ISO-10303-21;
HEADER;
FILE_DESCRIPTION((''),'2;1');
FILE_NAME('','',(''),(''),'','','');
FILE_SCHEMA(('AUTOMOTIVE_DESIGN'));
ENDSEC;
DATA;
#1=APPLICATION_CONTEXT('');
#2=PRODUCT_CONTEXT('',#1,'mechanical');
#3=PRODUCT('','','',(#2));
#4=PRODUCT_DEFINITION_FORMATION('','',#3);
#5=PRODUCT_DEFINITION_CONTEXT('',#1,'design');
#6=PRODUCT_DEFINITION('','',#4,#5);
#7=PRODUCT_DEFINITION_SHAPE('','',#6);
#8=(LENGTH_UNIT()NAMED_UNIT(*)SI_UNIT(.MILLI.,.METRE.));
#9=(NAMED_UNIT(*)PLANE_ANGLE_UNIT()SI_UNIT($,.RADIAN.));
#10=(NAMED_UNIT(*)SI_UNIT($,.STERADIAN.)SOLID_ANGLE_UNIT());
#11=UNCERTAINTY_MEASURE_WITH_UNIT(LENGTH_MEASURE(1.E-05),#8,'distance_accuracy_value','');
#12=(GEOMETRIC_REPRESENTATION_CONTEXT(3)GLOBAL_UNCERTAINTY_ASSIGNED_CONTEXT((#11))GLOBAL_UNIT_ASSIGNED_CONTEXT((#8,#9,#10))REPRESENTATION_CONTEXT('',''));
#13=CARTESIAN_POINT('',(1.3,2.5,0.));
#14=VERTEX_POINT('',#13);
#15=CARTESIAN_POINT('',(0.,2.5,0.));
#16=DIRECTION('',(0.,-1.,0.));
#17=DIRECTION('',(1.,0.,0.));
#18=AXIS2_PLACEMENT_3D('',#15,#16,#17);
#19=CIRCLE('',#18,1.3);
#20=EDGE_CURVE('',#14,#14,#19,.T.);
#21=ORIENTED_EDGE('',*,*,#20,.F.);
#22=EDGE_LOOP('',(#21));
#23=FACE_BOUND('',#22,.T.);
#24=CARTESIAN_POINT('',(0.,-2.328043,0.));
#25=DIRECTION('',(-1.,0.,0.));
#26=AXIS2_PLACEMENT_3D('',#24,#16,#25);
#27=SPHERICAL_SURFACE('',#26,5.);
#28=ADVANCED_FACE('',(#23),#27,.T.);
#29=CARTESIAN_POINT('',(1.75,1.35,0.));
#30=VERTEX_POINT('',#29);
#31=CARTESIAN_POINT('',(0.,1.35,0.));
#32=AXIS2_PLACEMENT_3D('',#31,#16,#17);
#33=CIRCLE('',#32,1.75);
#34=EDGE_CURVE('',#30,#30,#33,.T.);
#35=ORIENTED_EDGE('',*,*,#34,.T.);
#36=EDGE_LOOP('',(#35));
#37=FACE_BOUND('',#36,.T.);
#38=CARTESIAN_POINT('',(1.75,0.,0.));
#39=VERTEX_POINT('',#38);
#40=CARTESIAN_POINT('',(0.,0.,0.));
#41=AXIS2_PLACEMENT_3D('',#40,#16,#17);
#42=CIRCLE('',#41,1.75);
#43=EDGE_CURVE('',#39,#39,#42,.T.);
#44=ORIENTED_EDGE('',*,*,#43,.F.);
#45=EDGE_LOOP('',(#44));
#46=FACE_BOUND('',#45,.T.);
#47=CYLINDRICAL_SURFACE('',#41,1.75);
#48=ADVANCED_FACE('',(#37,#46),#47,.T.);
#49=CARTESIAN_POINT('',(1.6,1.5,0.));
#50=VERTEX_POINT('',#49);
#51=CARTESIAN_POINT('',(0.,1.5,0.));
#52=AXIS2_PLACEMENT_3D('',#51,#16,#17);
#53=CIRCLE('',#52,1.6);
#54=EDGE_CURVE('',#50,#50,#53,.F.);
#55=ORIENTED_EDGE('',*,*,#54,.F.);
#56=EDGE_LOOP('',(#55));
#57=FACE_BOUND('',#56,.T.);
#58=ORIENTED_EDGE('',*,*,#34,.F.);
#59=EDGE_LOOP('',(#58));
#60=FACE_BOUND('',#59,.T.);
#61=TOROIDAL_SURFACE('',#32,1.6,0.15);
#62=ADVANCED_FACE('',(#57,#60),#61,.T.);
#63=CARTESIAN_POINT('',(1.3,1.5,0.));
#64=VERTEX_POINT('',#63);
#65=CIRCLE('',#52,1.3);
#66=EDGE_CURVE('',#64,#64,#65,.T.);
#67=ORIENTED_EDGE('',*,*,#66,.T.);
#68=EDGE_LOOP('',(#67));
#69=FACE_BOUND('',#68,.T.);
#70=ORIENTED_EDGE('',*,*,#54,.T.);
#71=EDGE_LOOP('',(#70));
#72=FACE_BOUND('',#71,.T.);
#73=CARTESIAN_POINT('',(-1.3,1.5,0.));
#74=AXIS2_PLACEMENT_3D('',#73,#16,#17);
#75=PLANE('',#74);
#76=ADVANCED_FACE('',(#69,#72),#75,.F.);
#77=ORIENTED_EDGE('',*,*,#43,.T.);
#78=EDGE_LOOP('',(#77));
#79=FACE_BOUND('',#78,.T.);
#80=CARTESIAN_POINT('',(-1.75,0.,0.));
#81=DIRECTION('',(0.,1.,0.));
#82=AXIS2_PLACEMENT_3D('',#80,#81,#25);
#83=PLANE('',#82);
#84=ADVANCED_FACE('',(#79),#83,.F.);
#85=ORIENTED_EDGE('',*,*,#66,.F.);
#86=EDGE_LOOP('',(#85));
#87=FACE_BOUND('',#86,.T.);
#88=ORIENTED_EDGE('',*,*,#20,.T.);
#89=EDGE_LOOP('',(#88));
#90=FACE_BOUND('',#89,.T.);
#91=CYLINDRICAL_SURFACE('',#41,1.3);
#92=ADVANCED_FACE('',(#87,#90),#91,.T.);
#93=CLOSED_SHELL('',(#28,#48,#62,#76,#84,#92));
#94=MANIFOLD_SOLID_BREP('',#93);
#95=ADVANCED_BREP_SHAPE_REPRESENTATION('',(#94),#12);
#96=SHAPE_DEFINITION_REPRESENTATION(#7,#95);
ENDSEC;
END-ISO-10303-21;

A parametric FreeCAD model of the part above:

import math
import FreeCAD as App
import Part
import Sketcher

V = App.Vector
Q = App.Units.Quantity


def edges_at(feature, points):
    """Names of the edges that pass closest to the given points."""
    edges = feature.Shape.Edges
    near = lambda p: min(range(len(edges)), key=lambda i: edges[i].distToShape(Part.Vertex(*p))[0])
    return sorted({f"Edge{near(p) + 1}" for p in points})

doc = App.newDocument("Part")
body = doc.addObject("PartDesign::Body", "Body")

# Sketch on XY plane
sketch1 = body.newObject("Sketcher::SketchObject", "Sketch")
sketch1.AttachmentSupport = (doc.getObject("XY_Plane"), [""])
sketch1.MapMode = "FlatFace"
sketch1.addGeometry([
    Part.LineSegment(V(-1.3, 2.5, 0), V(-1.3, 1.5, 0)),  # 0
    Part.LineSegment(V(-1.3, 1.5, 0), V(-1.75, 1.5, 0)),  # 1
    Part.LineSegment(V(-1.75, 1.5, 0), V(-1.75, 0, 0)),  # 2
    Part.LineSegment(V(-1.75, 0, 0), V(0, 0, 0)),  # 3
    Part.LineSegment(V(0, 0, 0), V(0, 2.67, 0)),  # 4
    Part.ArcOfCircle(Part.Circle(V(0, -2.33, 0), V(0, 0, 1), 5), math.radians(90), math.radians(105.07)),  # 5
], False)
sketch1.addConstraint([
    Sketcher.Constraint("Coincident", 0, 2, 1, 1),
    Sketcher.Constraint("Coincident", 1, 2, 2, 1),
    Sketcher.Constraint("Coincident", 2, 2, 3, 1),
    Sketcher.Constraint("Coincident", 3, 2, 4, 1),
    Sketcher.Constraint("Coincident", 4, 2, 5, 1),
    Sketcher.Constraint("Coincident", 5, 2, 0, 1),
    Sketcher.Constraint("Vertical", 0),
    Sketcher.Constraint("Horizontal", 1),
    Sketcher.Constraint("Vertical", 2),
    Sketcher.Constraint("Horizontal", 3),
    Sketcher.Constraint("Vertical", 4),
    Sketcher.Constraint("Coincident", 3, 2, -1, 1),
    Sketcher.Constraint("PointOnObject", 5, 3, -2),
    Sketcher.Constraint("Radius", 5, Q("5 mm")),
    Sketcher.Constraint("DistanceY", 0, 2, 0, 1, Q("1 mm")),
    Sketcher.Constraint("DistanceY", 2, 2, 2, 1, Q("1.5 mm")),
    Sketcher.Constraint("DistanceX", 1, 2, 1, 1, Q("0.45 mm")),
    Sketcher.Constraint("DistanceX", 3, 1, 3, 2, Q("1.75 mm")),
])
revolution = body.newObject("PartDesign::Revolution", "Revolution")
revolution.Profile = sketch1
revolution.ReferenceAxis = (sketch1, ["V_Axis"])
revolution.Angle = 360
doc.recompute()

fillet = body.newObject("PartDesign::Fillet", "Fillet")
fillet.Base = (revolution, edges_at(revolution, [(-1.75, 1.5, 0)]))
fillet.Radius = 0.15

doc.recompute()
